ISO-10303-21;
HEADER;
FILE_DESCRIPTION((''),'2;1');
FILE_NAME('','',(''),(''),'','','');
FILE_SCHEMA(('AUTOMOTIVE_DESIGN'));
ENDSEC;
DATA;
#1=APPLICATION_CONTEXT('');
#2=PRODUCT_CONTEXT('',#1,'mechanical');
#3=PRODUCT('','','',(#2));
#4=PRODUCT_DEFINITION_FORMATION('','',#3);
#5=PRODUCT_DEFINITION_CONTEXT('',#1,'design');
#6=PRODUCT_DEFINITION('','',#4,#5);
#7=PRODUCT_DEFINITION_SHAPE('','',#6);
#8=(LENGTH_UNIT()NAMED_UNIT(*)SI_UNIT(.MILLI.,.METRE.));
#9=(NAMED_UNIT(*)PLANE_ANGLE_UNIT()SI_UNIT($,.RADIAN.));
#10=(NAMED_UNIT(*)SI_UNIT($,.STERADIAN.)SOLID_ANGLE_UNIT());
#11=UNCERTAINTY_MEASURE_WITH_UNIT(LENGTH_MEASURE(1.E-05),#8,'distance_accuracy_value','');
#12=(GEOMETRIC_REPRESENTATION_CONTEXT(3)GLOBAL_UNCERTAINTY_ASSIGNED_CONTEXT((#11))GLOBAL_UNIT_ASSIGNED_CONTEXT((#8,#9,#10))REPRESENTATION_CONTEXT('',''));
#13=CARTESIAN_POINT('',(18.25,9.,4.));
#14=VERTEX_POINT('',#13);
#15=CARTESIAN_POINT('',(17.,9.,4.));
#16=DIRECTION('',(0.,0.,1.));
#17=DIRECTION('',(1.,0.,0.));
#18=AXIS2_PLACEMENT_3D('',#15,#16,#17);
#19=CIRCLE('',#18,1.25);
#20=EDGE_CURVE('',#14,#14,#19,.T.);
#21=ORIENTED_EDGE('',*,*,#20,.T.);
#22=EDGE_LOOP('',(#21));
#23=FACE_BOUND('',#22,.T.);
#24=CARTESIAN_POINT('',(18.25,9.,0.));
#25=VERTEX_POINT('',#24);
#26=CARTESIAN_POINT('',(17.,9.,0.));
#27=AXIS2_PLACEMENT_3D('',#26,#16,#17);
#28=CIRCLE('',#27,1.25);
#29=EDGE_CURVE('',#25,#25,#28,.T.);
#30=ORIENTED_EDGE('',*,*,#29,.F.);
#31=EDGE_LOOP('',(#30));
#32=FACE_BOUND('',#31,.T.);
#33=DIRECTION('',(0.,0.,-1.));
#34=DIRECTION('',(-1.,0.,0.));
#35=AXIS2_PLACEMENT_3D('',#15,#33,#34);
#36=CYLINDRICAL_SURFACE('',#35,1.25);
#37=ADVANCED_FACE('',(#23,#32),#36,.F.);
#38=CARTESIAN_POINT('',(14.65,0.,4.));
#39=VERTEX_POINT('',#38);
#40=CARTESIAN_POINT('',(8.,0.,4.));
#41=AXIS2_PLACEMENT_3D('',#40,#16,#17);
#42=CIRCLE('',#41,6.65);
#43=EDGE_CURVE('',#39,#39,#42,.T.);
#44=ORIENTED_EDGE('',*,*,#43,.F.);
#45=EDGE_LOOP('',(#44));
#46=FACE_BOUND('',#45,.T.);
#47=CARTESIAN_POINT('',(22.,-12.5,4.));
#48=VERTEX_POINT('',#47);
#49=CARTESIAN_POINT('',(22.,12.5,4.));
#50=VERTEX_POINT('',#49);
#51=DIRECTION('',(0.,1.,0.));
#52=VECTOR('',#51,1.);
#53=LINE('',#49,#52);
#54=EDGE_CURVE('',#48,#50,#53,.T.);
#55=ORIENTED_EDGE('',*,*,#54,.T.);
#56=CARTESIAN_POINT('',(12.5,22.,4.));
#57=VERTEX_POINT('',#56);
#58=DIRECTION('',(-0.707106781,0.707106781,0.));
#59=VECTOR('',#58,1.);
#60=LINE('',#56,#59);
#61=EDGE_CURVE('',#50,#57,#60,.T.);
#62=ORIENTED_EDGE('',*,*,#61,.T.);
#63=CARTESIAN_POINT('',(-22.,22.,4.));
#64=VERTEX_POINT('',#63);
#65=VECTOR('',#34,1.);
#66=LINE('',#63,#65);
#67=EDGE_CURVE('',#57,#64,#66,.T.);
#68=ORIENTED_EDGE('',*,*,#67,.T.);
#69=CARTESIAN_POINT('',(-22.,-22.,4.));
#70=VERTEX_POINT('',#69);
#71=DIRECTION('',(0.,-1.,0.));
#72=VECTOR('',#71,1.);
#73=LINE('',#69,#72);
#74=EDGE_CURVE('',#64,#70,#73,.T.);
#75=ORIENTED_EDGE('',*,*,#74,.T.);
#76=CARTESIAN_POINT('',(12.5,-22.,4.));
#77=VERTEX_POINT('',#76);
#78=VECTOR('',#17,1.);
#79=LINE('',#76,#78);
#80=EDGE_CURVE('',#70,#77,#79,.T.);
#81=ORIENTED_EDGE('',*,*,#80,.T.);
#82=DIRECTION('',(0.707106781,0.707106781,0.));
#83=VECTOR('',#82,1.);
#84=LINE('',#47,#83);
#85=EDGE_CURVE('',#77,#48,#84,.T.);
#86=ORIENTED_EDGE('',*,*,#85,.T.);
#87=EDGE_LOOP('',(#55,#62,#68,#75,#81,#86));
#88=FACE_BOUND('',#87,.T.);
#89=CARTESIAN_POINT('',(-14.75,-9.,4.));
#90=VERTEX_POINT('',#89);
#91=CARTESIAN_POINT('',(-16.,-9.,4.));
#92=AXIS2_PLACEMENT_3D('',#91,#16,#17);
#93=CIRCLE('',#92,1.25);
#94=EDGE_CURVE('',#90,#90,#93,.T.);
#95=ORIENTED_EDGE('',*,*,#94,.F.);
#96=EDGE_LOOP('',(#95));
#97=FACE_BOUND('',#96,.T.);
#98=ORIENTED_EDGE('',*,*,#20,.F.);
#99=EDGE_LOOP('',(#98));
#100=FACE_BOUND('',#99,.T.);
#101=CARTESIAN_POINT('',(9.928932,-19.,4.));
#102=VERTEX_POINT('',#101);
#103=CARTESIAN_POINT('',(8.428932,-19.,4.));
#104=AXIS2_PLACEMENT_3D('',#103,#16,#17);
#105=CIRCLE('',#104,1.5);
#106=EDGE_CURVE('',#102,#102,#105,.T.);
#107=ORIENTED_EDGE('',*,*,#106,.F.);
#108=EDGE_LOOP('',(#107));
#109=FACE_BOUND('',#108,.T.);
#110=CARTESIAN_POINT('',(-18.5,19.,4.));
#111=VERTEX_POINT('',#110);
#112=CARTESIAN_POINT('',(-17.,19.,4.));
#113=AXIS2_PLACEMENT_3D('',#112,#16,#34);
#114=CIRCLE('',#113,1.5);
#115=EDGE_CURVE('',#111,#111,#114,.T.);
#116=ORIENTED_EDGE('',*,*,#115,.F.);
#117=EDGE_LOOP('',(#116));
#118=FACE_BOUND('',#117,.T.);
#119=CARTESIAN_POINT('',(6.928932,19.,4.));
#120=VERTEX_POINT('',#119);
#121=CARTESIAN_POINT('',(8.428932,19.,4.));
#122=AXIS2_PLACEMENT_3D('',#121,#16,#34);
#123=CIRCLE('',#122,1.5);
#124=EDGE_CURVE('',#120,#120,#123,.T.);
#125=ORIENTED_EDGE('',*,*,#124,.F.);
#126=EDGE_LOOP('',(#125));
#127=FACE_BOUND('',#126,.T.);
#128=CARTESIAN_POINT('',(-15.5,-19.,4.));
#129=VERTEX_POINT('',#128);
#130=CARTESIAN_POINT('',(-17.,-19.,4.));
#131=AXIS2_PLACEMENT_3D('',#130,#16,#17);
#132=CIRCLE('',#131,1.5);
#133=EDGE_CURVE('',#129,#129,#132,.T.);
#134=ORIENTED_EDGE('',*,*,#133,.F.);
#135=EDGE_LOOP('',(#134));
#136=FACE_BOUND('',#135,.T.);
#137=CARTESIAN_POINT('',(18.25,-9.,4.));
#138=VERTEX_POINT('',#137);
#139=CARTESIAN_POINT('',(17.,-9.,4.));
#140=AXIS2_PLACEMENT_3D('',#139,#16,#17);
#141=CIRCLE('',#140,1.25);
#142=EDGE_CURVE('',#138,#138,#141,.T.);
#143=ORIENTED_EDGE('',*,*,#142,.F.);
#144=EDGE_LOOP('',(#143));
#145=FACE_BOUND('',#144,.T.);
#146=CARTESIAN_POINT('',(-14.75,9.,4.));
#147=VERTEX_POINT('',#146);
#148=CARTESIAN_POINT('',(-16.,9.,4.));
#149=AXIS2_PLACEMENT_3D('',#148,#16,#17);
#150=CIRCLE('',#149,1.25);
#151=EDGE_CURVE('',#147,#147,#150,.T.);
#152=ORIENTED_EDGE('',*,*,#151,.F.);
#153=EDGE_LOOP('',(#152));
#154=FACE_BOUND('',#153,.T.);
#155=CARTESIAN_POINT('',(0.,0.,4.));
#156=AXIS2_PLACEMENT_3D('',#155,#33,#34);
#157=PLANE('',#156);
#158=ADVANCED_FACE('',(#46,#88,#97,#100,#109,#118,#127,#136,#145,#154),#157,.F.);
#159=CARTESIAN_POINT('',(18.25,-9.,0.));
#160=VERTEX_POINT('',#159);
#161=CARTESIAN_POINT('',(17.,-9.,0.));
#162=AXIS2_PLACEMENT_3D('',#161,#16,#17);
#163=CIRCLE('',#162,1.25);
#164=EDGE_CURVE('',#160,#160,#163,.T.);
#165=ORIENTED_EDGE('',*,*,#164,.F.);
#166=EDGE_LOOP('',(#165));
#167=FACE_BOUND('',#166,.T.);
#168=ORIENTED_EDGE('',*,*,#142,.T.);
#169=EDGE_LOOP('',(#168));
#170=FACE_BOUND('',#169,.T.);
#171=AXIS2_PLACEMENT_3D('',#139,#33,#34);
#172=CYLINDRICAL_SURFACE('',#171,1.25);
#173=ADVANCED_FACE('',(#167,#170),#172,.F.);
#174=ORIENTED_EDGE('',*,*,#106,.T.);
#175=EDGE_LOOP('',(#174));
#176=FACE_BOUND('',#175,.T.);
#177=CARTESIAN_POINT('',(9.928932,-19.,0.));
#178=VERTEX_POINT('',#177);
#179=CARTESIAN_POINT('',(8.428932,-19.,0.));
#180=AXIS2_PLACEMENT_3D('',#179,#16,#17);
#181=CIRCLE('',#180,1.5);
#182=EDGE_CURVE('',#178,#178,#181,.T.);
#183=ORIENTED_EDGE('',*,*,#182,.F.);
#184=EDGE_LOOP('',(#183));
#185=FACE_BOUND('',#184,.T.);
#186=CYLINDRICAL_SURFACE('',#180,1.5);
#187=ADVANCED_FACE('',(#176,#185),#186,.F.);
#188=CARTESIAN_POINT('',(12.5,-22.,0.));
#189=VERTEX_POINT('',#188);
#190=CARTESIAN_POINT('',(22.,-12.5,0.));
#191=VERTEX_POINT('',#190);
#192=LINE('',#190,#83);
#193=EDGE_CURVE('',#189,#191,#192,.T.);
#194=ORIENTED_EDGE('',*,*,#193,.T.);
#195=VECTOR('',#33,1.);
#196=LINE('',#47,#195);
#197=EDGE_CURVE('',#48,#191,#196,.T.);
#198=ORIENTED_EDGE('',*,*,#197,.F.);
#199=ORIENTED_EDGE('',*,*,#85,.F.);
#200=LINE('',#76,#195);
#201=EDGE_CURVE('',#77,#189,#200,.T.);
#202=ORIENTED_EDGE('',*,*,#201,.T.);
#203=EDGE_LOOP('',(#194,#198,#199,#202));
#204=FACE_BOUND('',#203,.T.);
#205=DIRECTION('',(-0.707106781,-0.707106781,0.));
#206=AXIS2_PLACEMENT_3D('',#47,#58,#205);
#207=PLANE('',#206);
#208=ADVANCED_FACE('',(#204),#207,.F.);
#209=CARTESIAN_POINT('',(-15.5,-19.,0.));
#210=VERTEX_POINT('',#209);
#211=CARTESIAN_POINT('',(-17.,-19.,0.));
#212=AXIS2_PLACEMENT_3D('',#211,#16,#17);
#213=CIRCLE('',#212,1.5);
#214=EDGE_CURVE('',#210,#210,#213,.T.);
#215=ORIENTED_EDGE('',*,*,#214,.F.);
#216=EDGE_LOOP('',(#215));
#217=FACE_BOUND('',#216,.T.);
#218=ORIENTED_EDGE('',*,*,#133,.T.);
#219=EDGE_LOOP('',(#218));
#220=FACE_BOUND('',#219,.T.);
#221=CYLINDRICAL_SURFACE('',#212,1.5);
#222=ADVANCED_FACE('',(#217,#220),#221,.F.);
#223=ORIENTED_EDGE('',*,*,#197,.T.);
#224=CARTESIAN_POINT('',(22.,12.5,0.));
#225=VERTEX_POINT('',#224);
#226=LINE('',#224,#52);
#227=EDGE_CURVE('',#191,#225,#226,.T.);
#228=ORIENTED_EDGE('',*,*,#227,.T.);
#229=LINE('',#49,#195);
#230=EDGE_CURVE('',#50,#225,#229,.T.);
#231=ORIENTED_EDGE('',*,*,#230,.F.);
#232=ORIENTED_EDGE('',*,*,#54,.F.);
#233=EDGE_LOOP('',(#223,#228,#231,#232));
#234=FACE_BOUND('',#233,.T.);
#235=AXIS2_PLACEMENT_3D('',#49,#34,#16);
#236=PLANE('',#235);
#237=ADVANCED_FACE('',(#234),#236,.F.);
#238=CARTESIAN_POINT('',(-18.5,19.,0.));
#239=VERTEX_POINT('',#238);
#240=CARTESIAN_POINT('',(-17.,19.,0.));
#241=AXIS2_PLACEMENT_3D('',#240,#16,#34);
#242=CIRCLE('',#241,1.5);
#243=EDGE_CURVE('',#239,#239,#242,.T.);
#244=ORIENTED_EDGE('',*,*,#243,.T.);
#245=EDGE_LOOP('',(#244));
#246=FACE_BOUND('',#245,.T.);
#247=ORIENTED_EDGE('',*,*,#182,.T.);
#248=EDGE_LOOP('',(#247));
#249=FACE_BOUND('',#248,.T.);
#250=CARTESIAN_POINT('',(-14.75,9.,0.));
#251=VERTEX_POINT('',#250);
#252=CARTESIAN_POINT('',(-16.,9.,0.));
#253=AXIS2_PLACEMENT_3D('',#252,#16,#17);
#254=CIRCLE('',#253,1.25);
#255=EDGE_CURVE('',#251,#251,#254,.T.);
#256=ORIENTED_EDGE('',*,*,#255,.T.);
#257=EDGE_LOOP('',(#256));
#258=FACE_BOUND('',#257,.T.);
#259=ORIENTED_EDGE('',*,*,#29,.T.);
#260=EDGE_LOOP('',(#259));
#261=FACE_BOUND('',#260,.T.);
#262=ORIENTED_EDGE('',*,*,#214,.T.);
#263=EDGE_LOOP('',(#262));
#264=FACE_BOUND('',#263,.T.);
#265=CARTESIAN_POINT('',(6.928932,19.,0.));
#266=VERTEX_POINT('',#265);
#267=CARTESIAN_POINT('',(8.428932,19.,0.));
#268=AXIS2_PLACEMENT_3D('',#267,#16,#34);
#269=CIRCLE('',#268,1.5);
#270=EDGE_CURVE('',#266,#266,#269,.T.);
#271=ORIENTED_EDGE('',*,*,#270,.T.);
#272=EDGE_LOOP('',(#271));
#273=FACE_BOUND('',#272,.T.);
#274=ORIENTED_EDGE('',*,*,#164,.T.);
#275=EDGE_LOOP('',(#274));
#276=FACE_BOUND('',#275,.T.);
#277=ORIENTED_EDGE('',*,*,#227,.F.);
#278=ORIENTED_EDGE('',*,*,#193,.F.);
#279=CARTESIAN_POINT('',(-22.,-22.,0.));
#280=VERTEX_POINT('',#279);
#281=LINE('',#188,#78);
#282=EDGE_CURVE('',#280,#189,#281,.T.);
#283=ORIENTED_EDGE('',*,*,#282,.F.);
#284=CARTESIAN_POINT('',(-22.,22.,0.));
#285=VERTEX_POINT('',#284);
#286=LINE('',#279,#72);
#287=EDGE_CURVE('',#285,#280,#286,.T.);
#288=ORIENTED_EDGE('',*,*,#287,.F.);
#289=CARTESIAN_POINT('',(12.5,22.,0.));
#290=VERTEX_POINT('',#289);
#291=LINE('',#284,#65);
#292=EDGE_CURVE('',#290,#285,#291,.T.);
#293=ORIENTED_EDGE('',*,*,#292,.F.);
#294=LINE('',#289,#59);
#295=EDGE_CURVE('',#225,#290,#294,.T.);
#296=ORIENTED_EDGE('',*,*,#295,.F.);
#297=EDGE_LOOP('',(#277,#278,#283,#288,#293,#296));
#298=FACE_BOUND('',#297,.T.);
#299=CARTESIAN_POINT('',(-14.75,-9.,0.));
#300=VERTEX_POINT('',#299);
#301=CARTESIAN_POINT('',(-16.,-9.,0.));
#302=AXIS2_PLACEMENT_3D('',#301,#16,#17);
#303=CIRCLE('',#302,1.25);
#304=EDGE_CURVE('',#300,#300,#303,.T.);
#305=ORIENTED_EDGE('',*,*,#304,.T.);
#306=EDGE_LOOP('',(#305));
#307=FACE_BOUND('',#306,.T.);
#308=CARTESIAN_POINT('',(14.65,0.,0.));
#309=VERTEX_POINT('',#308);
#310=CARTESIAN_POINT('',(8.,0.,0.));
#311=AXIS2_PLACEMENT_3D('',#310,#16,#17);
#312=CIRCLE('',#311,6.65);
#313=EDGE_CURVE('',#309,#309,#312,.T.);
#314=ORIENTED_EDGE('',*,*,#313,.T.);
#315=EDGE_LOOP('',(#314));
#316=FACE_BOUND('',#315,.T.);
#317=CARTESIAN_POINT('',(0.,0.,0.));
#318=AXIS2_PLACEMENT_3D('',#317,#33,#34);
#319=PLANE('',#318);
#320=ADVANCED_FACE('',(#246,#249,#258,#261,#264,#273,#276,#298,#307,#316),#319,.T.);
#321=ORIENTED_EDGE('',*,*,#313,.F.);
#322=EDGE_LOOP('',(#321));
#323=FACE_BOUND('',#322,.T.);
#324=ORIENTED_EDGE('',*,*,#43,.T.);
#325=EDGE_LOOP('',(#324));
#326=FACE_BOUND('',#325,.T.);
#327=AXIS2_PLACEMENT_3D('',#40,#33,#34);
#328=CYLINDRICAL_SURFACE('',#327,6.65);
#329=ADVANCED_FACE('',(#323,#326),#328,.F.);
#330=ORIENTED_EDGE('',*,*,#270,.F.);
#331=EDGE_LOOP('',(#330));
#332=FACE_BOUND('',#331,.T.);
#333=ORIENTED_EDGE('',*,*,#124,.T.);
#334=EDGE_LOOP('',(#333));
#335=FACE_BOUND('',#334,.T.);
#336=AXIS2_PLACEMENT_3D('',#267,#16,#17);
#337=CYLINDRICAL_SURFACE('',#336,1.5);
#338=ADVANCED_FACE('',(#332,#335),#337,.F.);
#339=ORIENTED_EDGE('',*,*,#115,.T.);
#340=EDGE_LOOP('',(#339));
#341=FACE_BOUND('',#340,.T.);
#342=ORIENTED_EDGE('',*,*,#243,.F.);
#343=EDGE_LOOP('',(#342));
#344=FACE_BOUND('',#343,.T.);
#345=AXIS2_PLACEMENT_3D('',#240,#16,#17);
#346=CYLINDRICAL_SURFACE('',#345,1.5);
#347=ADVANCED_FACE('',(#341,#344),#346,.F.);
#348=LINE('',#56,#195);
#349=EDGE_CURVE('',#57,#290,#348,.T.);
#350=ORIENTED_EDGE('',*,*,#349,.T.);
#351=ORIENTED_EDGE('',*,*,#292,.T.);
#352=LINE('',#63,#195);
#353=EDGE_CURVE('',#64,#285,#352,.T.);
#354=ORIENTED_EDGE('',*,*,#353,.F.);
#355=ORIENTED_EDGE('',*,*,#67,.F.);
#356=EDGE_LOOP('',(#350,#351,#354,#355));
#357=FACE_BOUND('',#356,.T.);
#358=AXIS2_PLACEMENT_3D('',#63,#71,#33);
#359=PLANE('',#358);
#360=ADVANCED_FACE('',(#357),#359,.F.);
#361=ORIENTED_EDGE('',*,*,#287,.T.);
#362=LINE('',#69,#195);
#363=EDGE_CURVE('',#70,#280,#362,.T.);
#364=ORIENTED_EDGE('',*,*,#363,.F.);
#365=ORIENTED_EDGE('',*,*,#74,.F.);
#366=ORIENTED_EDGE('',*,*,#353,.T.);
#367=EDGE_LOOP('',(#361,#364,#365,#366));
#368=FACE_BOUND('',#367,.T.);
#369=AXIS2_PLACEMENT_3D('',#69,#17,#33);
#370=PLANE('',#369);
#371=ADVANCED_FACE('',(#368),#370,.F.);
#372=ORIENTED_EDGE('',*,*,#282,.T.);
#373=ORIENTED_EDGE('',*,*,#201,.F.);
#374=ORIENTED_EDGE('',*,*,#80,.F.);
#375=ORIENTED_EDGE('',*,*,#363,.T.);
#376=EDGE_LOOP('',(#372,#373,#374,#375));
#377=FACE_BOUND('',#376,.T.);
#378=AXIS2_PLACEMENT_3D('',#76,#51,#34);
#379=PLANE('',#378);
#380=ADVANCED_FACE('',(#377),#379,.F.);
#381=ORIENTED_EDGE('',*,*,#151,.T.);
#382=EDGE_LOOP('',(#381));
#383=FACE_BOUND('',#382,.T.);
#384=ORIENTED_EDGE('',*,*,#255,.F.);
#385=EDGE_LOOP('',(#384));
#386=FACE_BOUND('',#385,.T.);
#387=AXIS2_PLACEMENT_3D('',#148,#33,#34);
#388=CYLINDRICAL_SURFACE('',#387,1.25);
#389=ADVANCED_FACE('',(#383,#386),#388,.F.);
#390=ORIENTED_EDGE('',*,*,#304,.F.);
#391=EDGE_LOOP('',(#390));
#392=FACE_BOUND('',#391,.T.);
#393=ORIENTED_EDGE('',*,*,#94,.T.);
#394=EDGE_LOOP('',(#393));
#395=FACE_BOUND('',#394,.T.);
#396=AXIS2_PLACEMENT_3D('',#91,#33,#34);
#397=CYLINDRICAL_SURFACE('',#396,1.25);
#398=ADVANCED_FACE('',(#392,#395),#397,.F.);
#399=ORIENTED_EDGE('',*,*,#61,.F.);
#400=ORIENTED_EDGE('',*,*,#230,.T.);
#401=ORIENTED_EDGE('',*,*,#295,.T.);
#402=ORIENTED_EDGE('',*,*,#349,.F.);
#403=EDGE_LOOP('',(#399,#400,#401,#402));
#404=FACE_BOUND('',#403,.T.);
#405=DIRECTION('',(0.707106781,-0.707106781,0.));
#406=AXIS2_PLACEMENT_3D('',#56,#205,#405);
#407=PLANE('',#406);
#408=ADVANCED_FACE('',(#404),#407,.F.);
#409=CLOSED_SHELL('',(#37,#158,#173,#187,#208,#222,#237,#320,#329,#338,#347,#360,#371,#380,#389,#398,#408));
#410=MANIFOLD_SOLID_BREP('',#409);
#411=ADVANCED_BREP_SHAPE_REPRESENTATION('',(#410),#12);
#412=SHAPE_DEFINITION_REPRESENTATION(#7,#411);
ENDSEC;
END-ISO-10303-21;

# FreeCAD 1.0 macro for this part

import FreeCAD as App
import Part
import Sketcher

V = App.Vector


def add_polygon(sketch, points):
    """Adds a closed chain of lines whose ends are joined by coincident constraints."""
    first, n = sketch.GeometryCount, len(points)
    for a, b in zip(points, points[1:] + points[:1]):
        sketch.addGeometry(Part.LineSegment(App.Vector(*a, 0), App.Vector(*b, 0)), False)
    for i in range(n):
        sketch.addConstraint(Sketcher.Constraint("Coincident", first + i, 2, first + (i + 1) % n, 1))

doc = App.newDocument("Part")
body = doc.addObject("PartDesign::Body", "Body")

# Sketch on XY plane
sketch1 = body.newObject("Sketcher::SketchObject", "Sketch")
sketch1.AttachmentSupport = (doc.getObject("XY_Plane"), [""])
sketch1.MapMode = "FlatFace"
add_polygon(sketch1, [(22, -12.5), (22, 12.5), (12.5, 22), (-22, 22), (-22, -22), (12.5, -22)])  # lines 0-5
sketch1.addGeometry(Part.Circle(V(17, -9, 0), V(0, 0, 1), 1.25), False)  # 6
sketch1.addGeometry(Part.Circle(V(-16, -9, 0), V(0, 0, 1), 1.25), False)  # 7
sketch1.addGeometry(Part.Circle(V(8, 0, 0), V(0, 0, 1), 6.65), False)  # 8
sketch1.addGeometry(Part.Circle(V(17, 9, 0), V(0, 0, 1), 1.25), False)  # 9
sketch1.addGeometry(Part.Circle(V(-16, 9, 0), V(0, 0, 1), 1.25), False)  # 10
sketch1.addConstraint([
    Sketcher.Constraint("Vertical", 0),
    Sketcher.Constraint("Horizontal", 2),
    Sketcher.Constraint("Vertical", 3),
    Sketcher.Constraint("Horizontal", 4),
    Sketcher.Constraint("Equal", 6, 7),
    Sketcher.Constraint("Equal", 7, 9),
    Sketcher.Constraint("Equal", 9, 10),
    Sketcher.Constraint("Symmetric", 6, 3, 9, 3, -1),
    Sketcher.Constraint("Symmetric", 7, 3, 10, 3, -1),
    Sketcher.Constraint("Symmetric", 1, 2, 4, 2, -1),
    Sketcher.Constraint("PointOnObject", 8, 3, -1),
    Sketcher.Constraint("Perpendicular", 1, 5),
    Sketcher.Constraint("Horizontal", 6, 3, 7, 3),
    Sketcher.Constraint("Equal", 1, 5),
    Sketcher.Constraint("Diameter", 6, 2.5),
    Sketcher.Constraint("Diameter", 8, 13.3),
    Sketcher.Constraint("DistanceY", 0, 1, 0, 2, 25.0),
    Sketcher.Constraint("DistanceY", 3, 2, 3, 1, 44.0),
    Sketcher.Constraint("DistanceX", 2, 2, 2, 1, 34.5),
    Sketcher.Constraint("DistanceX", -1, 1, 6, 3, 17.0),
    Sketcher.Constraint("DistanceY", 6, 3, -1, 1, 9.0),
    Sketcher.Constraint("DistanceX", 7, 3, -1, 1, 16.0),
    Sketcher.Constraint("DistanceX", -1, 1, 8, 3, 8.0),
    Sketcher.Constraint("DistanceX", -1, 1, 0, 2, 22.0),
])
pad1 = body.newObject("PartDesign::Pad", "Pad")
pad1.Profile = sketch1
pad1.Length = 4

# Sketch on XY plane
sketch2 = body.newObject("Sketcher::SketchObject", "Sketch001")
sketch2.AttachmentSupport = (doc.getObject("XY_Plane"), [""])
sketch2.MapMode = "FlatFace"
sketch2.AttachmentOffset = App.Placement(V(0, 0, 4), App.Rotation())
sketch2.addGeometry([
    Part.Circle(V(-17, -19, 0), V(0, 0, 1), 1.5),
    Part.Circle(V(8.428932, -19, 0), V(0, 0, 1), 1.5),
    Part.Circle(V(-17, 19, 0), V(0, 0, 1), 1.5),
    Part.Circle(V(8.428932, 19, 0), V(0, 0, 1), 1.5),
], False)
sketch2.addConstraint([
    Sketcher.Constraint("Equal", 0, 1),
    Sketcher.Constraint("Equal", 1, 2),
    Sketcher.Constraint("Equal", 2, 3),
    Sketcher.Constraint("Symmetric", 0, 3, 2, 3, -1),
    Sketcher.Constraint("Symmetric", 1, 3, 3, 3, -1),
    Sketcher.Constraint("Horizontal", 0, 3, 1, 3),
    Sketcher.Constraint("Diameter", 0, 3.0),
    Sketcher.Constraint("DistanceX", 0, 3, -1, 1, 17.0),
    Sketcher.Constraint("DistanceY", 0, 3, -1, 1, 19.0),
    Sketcher.Constraint("DistanceX", -1, 1, 1, 3, 8.428932),
])
pocket1 = body.newObject("PartDesign::Pocket", "Pocket")
pocket1.Profile = sketch2
pocket1.Type = "ThroughAll"

doc.recompute()
